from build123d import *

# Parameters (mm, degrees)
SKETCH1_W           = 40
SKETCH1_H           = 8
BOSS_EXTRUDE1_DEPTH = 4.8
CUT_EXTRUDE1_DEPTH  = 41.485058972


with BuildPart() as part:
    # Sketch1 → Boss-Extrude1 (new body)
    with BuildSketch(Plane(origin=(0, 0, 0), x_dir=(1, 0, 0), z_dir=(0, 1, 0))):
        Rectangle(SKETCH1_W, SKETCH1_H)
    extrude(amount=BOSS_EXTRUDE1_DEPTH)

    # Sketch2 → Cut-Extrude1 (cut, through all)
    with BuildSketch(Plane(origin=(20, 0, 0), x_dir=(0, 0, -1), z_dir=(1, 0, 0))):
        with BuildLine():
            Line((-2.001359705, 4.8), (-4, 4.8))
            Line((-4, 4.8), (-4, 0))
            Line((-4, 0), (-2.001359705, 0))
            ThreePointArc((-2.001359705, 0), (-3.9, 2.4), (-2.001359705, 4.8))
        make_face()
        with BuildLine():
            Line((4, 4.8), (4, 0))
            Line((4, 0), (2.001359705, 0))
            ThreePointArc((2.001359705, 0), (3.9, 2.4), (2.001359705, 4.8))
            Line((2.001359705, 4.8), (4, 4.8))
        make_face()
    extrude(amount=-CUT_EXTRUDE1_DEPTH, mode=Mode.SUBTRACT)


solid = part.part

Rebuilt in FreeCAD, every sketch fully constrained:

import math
import FreeCAD as App
import Part
import Sketcher

V = App.Vector
Q = App.Units.Quantity


def add_polygon(sketch, points):
    """Adds a closed chain of lines whose ends are joined by coincident constraints."""
    first, n = sketch.GeometryCount, len(points)
    for a, b in zip(points, points[1:] + points[:1]):
        sketch.addGeometry(Part.LineSegment(App.Vector(*a, 0), App.Vector(*b, 0)), False)
    for i in range(n):
        sketch.addConstraint(Sketcher.Constraint("Coincident", first + i, 2, first + (i + 1) % n, 1))

doc = App.newDocument("Part")
params = doc.addObject("Spreadsheet::Sheet", "Params")
for row, (alias, value) in enumerate([
    ("sketch1_width", "40 mm"),
    ("sketch1_height", "8 mm"),
    ("pad1_length", "4.8 mm"),
    ("sketch2_width", "4.8 mm"),
], start=1):
    params.set(f"A{row}", alias)
    params.set(f"B{row}", "=" + value)
    params.setAlias(f"B{row}", alias)

body = doc.addObject("PartDesign::Body", "Body")

# Sketch on XZ plane
sketch1 = body.newObject("Sketcher::SketchObject", "Sketch")
sketch1.AttachmentSupport = (doc.getObject("XZ_Plane"), [""])
sketch1.MapMode = "FlatFace"
add_polygon(sketch1, [(-20, -4), (-20, 4), (20, 4), (20, -4)])  # lines 0-3
sketch1.addConstraint([
    Sketcher.Constraint("Vertical", 0),
    Sketcher.Constraint("Horizontal", 1),
    Sketcher.Constraint("Vertical", 2),
    Sketcher.Constraint("Horizontal", 3),
    Sketcher.Constraint("Symmetric", 0, 2, 2, 2, -1, 1),
    Sketcher.Constraint("DistanceX", 1, 1, 1, 2, Q("40 mm")),
    Sketcher.Constraint("DistanceY", 0, 1, 0, 2, Q("8 mm")),
])
sketch1.setExpression("Constraints[9]", "Params.sketch1_width")
sketch1.setExpression("Constraints[10]", "Params.sketch1_height")
pad1 = body.newObject("PartDesign::Pad", "Pad")
pad1.Profile = sketch1
pad1.setExpression("Length", "Params.pad1_length")
pad1.Reversed = True

# Sketch on YZ plane
sketch2 = body.newObject("Sketcher::SketchObject", "Sketch001")
sketch2.AttachmentSupport = (doc.getObject("YZ_Plane"), [""])
sketch2.MapMode = "FlatFace"
sketch2.AttachmentOffset = App.Placement(V(0, 0, 20), App.Rotation())
sketch2.addGeometry([
    Part.LineSegment(V(4.8, 2, 0), V(4.8, 4, 0)),  # 0
    Part.LineSegment(V(4.8, 4, 0), V(0, 4, 0)),  # 1
    Part.LineSegment(V(0, 4, 0), V(0, 2, 0)),  # 2
    Part.ArcOfCircle(Part.Circle(V(2.4, 1.4, 0), V(0, 0, 1), 2.5), math.radians(13), math.radians(167)),  # 3
    Part.LineSegment(V(0, -4, 0), V(4.8, -4, 0)),  # 4
    Part.LineSegment(V(4.8, -4, 0), V(4.8, -2, 0)),  # 5
    Part.ArcOfCircle(Part.Circle(V(2.4, -1.4, 0), V(0, 0, 1), 2.5), math.radians(-167), math.radians(-13)),  # 6
    Part.LineSegment(V(0, -2, 0), V(0, -4, 0)),  # 7
], False)
sketch2.addConstraint([
    Sketcher.Constraint("Coincident", 0, 2, 1, 1),
    Sketcher.Constraint("Coincident", 1, 2, 2, 1),
    Sketcher.Constraint("Coincident", 2, 2, 3, 2),
    Sketcher.Constraint("Coincident", 3, 1, 0, 1),
    Sketcher.Constraint("Coincident", 4, 2, 5, 1),
    Sketcher.Constraint("Coincident", 5, 2, 6, 2),
    Sketcher.Constraint("Coincident", 6, 1, 7, 1),
    Sketcher.Constraint("Coincident", 7, 2, 4, 1),
    Sketcher.Constraint("Vertical", 0),
    Sketcher.Constraint("Horizontal", 1),
    Sketcher.Constraint("Vertical", 2),
    Sketcher.Constraint("Horizontal", 4),
    Sketcher.Constraint("Vertical", 5),
    Sketcher.Constraint("Vertical", 7),
    Sketcher.Constraint("Equal", 3, 6),
    Sketcher.Constraint("Symmetric", 2, 2, 6, 1, -1, 1),
    Sketcher.Constraint("Symmetric", 3, 3, 6, 3, -1),
    Sketcher.Constraint("Symmetric", 0, 2, 4, 2, -1),
    Sketcher.Constraint("Horizontal", 2, 2, 3, 1),
    Sketcher.Constraint("DistanceX", 1, 2, 1, 1, Q("4.8 mm")),
    Sketcher.Constraint("DistanceY", -1, 1, 0, 2, Q("4 mm")),
    Sketcher.Constraint("Radius", 3, Q("2.466195 mm")),
    Sketcher.Constraint("DistanceY", 0, 1, 0, 2, Q("1.99864 mm")),
])
sketch2.setExpression("Constraints[19]", "Params.sketch2_width")
pocket1 = body.newObject("PartDesign::Pocket", "Pocket")
pocket1.Profile = sketch2
pocket1.Type = "ThroughAll"

doc.recompute()
